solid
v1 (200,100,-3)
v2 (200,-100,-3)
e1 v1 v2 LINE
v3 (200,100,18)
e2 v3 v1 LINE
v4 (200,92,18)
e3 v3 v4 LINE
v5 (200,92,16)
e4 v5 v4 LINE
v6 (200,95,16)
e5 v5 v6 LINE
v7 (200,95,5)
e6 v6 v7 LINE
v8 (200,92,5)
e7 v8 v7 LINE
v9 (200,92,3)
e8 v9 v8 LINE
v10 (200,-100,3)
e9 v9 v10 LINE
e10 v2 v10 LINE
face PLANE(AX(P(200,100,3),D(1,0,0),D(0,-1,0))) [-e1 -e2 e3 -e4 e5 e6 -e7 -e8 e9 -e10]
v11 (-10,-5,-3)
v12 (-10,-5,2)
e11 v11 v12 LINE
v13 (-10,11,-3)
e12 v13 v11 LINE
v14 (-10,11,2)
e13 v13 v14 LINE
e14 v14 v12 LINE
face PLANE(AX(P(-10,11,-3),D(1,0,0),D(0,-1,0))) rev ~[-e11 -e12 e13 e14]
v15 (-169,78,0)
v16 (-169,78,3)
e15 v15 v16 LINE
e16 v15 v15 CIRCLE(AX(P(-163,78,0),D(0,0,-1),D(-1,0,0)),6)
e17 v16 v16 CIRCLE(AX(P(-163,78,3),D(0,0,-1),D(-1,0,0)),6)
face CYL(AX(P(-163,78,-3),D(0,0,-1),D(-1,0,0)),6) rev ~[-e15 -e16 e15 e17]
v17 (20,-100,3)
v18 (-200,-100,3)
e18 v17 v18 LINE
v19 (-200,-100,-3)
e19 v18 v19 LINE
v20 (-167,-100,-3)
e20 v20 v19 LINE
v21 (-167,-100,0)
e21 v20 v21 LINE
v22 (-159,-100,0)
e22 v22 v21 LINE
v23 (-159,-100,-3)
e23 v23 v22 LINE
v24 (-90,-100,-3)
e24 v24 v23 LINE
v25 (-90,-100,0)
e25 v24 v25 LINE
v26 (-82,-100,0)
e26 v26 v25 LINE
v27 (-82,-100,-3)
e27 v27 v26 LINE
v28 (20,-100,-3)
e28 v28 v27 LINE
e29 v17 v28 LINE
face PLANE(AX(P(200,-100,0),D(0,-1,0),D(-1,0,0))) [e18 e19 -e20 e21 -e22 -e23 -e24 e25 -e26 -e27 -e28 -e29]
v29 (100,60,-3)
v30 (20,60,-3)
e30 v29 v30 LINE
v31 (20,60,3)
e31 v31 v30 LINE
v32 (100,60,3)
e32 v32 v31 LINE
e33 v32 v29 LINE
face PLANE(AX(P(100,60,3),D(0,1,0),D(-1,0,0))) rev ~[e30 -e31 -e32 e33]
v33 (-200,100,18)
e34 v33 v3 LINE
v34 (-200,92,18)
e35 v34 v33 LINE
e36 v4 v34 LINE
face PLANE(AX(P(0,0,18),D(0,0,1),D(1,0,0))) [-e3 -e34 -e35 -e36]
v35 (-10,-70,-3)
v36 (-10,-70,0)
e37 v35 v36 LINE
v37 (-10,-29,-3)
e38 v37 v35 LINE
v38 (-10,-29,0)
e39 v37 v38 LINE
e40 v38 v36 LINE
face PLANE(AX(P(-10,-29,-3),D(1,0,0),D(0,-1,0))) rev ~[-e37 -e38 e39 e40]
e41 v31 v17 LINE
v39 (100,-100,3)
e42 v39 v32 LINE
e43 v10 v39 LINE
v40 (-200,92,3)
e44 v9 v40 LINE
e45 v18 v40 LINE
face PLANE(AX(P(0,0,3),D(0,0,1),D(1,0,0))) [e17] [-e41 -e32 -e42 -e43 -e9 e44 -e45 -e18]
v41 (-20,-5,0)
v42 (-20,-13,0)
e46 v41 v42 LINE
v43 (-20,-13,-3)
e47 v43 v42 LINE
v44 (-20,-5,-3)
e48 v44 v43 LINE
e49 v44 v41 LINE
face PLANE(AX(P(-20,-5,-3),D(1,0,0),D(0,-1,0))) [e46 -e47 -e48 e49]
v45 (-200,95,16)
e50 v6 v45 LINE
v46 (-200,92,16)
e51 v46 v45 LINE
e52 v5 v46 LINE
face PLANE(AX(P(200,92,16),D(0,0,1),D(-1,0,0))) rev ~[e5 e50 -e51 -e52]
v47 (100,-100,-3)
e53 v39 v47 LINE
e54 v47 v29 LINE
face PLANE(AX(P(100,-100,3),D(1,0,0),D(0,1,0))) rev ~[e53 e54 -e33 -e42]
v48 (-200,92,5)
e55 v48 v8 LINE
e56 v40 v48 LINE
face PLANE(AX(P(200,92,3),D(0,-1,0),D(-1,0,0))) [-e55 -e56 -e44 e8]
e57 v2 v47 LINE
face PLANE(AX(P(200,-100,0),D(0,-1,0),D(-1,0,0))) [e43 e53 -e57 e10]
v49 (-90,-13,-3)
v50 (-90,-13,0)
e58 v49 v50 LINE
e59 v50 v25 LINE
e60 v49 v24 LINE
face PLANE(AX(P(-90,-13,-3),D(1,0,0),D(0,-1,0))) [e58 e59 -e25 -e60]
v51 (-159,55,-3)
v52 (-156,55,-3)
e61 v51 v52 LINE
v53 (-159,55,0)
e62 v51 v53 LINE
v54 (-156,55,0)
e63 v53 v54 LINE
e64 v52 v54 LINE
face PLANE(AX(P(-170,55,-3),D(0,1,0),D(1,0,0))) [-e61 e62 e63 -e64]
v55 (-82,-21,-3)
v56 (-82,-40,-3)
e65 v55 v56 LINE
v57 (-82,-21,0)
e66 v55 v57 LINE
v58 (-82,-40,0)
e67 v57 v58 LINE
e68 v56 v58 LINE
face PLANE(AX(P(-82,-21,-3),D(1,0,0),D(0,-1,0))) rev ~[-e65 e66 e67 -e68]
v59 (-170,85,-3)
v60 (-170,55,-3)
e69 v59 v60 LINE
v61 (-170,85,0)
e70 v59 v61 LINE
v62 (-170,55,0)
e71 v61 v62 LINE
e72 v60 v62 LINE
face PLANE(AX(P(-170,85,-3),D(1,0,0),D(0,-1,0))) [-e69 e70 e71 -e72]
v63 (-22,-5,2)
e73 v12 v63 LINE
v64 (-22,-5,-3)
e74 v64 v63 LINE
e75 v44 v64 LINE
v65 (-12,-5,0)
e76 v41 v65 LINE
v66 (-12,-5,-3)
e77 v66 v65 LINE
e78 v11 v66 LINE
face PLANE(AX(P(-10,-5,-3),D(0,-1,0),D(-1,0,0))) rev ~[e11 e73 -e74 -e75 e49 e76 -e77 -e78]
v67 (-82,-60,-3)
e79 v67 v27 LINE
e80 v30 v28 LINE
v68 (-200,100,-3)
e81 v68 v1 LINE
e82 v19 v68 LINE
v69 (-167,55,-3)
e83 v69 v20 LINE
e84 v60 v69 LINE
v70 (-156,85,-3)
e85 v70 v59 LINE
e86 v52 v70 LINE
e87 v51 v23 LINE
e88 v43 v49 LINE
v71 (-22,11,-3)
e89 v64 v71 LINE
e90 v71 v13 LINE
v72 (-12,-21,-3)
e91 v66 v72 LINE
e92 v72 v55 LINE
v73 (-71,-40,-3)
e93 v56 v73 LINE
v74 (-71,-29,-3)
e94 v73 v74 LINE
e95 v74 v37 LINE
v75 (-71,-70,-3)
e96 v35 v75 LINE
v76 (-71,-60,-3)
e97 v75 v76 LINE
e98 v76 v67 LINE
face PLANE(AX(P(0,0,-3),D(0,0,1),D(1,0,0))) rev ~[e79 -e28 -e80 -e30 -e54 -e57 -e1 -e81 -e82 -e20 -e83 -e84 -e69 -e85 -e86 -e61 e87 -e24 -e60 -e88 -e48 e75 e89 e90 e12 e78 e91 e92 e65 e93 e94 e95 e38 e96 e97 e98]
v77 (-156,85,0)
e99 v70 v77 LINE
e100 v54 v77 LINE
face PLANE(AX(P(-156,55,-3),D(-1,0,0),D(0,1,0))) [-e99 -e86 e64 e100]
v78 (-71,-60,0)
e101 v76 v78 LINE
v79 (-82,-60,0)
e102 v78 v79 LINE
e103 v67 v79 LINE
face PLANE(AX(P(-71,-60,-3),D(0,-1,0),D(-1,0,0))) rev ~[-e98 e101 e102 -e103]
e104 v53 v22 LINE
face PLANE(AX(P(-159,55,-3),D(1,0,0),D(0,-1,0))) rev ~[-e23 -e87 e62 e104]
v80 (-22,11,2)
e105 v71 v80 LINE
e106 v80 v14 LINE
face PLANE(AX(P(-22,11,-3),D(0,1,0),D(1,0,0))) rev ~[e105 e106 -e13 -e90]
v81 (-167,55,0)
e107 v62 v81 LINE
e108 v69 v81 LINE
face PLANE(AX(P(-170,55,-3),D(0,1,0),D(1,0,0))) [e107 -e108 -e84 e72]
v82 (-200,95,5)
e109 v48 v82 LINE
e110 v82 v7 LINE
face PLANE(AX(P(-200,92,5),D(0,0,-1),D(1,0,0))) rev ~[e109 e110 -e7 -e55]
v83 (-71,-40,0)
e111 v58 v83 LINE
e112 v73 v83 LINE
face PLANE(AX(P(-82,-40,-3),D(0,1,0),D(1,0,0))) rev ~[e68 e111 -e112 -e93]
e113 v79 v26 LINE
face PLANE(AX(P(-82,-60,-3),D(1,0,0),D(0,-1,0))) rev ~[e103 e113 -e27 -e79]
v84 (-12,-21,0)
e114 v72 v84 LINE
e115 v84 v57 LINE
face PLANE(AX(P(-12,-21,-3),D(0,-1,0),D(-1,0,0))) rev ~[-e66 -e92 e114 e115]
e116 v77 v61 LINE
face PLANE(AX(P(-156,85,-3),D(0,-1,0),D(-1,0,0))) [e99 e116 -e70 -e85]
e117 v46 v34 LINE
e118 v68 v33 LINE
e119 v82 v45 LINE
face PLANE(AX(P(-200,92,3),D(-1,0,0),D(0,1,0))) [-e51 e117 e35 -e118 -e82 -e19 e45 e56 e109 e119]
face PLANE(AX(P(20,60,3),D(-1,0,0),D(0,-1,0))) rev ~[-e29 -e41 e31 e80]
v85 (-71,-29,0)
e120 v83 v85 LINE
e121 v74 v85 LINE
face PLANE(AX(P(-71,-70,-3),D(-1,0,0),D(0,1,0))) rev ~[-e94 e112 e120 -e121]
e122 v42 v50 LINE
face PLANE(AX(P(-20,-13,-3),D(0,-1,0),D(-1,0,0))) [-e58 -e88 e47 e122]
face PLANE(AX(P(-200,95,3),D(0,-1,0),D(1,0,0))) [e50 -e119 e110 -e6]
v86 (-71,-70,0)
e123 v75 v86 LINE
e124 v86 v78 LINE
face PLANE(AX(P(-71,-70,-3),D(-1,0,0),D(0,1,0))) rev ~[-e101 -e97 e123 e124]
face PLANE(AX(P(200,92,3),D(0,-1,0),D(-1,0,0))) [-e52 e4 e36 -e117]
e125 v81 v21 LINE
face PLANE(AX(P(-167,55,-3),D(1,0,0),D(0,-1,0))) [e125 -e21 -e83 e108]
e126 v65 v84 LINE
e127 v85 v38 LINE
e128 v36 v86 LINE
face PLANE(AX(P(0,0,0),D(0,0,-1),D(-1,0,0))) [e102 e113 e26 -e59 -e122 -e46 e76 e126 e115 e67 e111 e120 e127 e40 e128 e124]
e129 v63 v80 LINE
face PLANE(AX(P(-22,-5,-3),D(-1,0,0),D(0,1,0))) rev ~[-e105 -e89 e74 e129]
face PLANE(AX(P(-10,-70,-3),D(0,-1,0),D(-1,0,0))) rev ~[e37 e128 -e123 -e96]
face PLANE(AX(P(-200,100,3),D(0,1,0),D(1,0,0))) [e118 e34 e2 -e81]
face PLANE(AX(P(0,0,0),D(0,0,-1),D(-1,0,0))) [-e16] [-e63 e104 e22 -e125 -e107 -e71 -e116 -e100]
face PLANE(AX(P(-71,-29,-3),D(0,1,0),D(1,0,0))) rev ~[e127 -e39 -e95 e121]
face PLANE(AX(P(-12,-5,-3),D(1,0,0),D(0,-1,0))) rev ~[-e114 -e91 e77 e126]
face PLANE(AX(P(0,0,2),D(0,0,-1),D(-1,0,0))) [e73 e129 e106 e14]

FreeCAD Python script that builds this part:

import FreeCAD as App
import Part
import Sketcher

V = App.Vector
Q = App.Units.Quantity


def add_polygon(sketch, points):
    """Adds a closed chain of lines whose ends are joined by coincident constraints."""
    first, n = sketch.GeometryCount, len(points)
    for a, b in zip(points, points[1:] + points[:1]):
        sketch.addGeometry(Part.LineSegment(App.Vector(*a, 0), App.Vector(*b, 0)), False)
    for i in range(n):
        sketch.addConstraint(Sketcher.Constraint("Coincident", first + i, 2, first + (i + 1) % n, 1))

doc = App.newDocument("Part")
params = doc.addObject("Spreadsheet::Sheet", "Params")
for row, (alias, value) in enumerate([
    ("sketch1_width", "400 mm"),
    ("sketch1_height", "200 mm"),
    ("pad1_length", "6 mm"),
    ("sketch2_width", "80 mm"),
    ("sketch2_height", "160 mm"),
    ("sketch3_width", "12 mm"),
    ("sketch3_height", "16 mm"),
    ("pocket2_length", "5 mm"),
    ("sketch4_width", "61 mm"),
    ("sketch4_height", "41 mm"),
    ("pocket3_length", "3 mm"),
    ("sketch5_width", "8 mm"),
    ("sketch5_height", "20 mm"),
    ("sketch5_height2", "40 mm"),
    ("sketch5_width2", "70 mm"),
    ("sketch5_width3", "11 mm"),
    ("pocket4_length", "3 mm"),
    ("sketch6_height", "8 mm"),
    ("sketch6_width", "400 mm"),
    ("pad2_length", "15 mm"),
    ("sketch7_height", "11 mm"),
    ("sketch7_width", "400 mm"),
    ("pocket5_length", "3 mm"),
    ("sketch8_diameter", "12 mm"),
    ("pocket6_length", "6 mm"),
    ("sketch9_diameter", "12 mm"),
    ("sketch9_width", "14 mm"),
    ("sketch9_height", "30 mm"),
    ("pocket7_length", "3 mm"),
    ("sketch10_width", "8 mm"),
    ("sketch10_height", "155 mm"),
    ("pocket8_length", "3 mm"),
], start=1):
    params.set(f"A{row}", alias)
    params.set(f"B{row}", "=" + value)
    params.setAlias(f"B{row}", alias)

body = doc.addObject("PartDesign::Body", "Body")

# Sketch on XY plane
sketch1 = body.newObject("Sketcher::SketchObject", "Sketch")
sketch1.AttachmentSupport = (doc.getObject("XY_Plane"), [""])
sketch1.MapMode = "FlatFace"
add_polygon(sketch1, [(-200, -100), (200, -100), (200, 100), (-200, 100)])  # lines 0-3
sketch1.addConstraint([
    Sketcher.Constraint("Horizontal", 0),
    Sketcher.Constraint("Vertical", 1),
    Sketcher.Constraint("Horizontal", 2),
    Sketcher.Constraint("Vertical", 3),
    Sketcher.Constraint("Symmetric", 0, 2, 2, 2, -1, 1),
    Sketcher.Constraint("DistanceX", 0, 1, 0, 2, Q("400 mm")),
    Sketcher.Constraint("DistanceY", 1, 1, 1, 2, Q("200 mm")),
])
sketch1.setExpression("Constraints[9]", "Params.sketch1_width")
sketch1.setExpression("Constraints[10]", "Params.sketch1_height")
pad1 = body.newObject("PartDesign::Pad", "Pad")
pad1.Profile = sketch1
pad1.setExpression("Length", "Params.pad1_length")
pad1.Midplane = True

# Sketch on XY plane
sketch2 = body.newObject("Sketcher::SketchObject", "Sketch001")
sketch2.AttachmentSupport = (doc.getObject("XY_Plane"), [""])
sketch2.MapMode = "FlatFace"
sketch2.AttachmentOffset = App.Placement(V(0, 0, 3), App.Rotation())
add_polygon(sketch2, [(20, 60), (20, -100), (100, -100), (100, 60)])  # lines 0-3
sketch2.addConstraint([
    Sketcher.Constraint("Vertical", 0),
    Sketcher.Constraint("Horizontal", 1),
    Sketcher.Constraint("Vertical", 2),
    Sketcher.Constraint("Horizontal", 3),
    Sketcher.Constraint("DistanceX", 1, 1, 1, 2, Q("80 mm")),
    Sketcher.Constraint("DistanceY", 0, 2, 0, 1, Q("160 mm")),
    Sketcher.Constraint("DistanceY", 0, 2, -1, 1, Q("100 mm")),
    Sketcher.Constraint("DistanceX", -1, 1, 1, 2, Q("100 mm")),
])
sketch2.setExpression("Constraints[8]", "Params.sketch2_width")
sketch2.setExpression("Constraints[9]", "Params.sketch2_height")
pocket1 = body.newObject("PartDesign::Pocket", "Pocket")
pocket1.Profile = sketch2
pocket1.Type = "ThroughAll"

# Sketch on XY plane
sketch3 = body.newObject("Sketcher::SketchObject", "Sketch002")
sketch3.AttachmentSupport = (doc.getObject("XY_Plane"), [""])
sketch3.MapMode = "FlatFace"
sketch3.AttachmentOffset = App.Placement(V(0, 0, -3), App.Rotation())
add_polygon(sketch3, [(-10, 11), (-10, -5), (-22, -5), (-22, 11)])  # lines 0-3
sketch3.addConstraint([
    Sketcher.Constraint("Vertical", 0),
    Sketcher.Constraint("Horizontal", 1),
    Sketcher.Constraint("Vertical", 2),
    Sketcher.Constraint("Horizontal", 3),
    Sketcher.Constraint("DistanceX", 1, 2, 1, 1, Q("12 mm")),
    Sketcher.Constraint("DistanceY", 0, 2, 0, 1, Q("16 mm")),
    Sketcher.Constraint("DistanceX", 0, 2, -1, 1, Q("10 mm")),
    Sketcher.Constraint("DistanceY", 0, 2, -1, 1, Q("5 mm")),
])
sketch3.setExpression("Constraints[8]", "Params.sketch3_width")
sketch3.setExpression("Constraints[9]", "Params.sketch3_height")
pocket2 = body.newObject("PartDesign::Pocket", "Pocket001")
pocket2.Profile = sketch3
pocket2.setExpression("Length", "Params.pocket2_length")
pocket2.Reversed = True

# Sketch on XY plane
sketch4 = body.newObject("Sketcher::SketchObject", "Sketch003")
sketch4.AttachmentSupport = (doc.getObject("XY_Plane"), [""])
sketch4.MapMode = "FlatFace"
sketch4.AttachmentOffset = App.Placement(V(0, 0, -3), App.Rotation())
add_polygon(sketch4, [(-71, -70), (-71, -29), (-10, -29), (-10, -70)])  # lines 0-3
sketch4.addConstraint([
    Sketcher.Constraint("Vertical", 0),
    Sketcher.Constraint("Horizontal", 1),
    Sketcher.Constraint("Vertical", 2),
    Sketcher.Constraint("Horizontal", 3),
    Sketcher.Constraint("DistanceX", 1, 1, 1, 2, Q("61 mm")),
    Sketcher.Constraint("DistanceY", 0, 1, 0, 2, Q("41 mm")),
    Sketcher.Constraint("DistanceX", 0, 2, -1, 1, Q("71 mm")),
    Sketcher.Constraint("DistanceY", 0, 2, -1, 1, Q("29 mm")),
])
sketch4.setExpression("Constraints[8]", "Params.sketch4_width")
sketch4.setExpression("Constraints[9]", "Params.sketch4_height")
pocket3 = body.newObject("PartDesign::Pocket", "Pocket002")
pocket3.Profile = sketch4
pocket3.setExpression("Length", "Params.pocket3_length")
pocket3.Reversed = True

# Sketch on XY plane
sketch5 = body.newObject("Sketcher::SketchObject", "Sketch004")
sketch5.AttachmentSupport = (doc.getObject("XY_Plane"), [""])
sketch5.MapMode = "FlatFace"
sketch5.AttachmentOffset = App.Placement(V(0, 0, -3), App.Rotation())
add_polygon(sketch5, [(-20, -13), (-20, -5), (-12, -5), (-12, -21), (-82, -21), (-82, -40), (-71, -40), (-71, -60), (-82, -60), (-82, -100), (-90, -100), (-90, -13)])  # lines 0-11
sketch5.addConstraint([
    Sketcher.Constraint("Vertical", 0),
    Sketcher.Constraint("Horizontal", 1),
    Sketcher.Constraint("Vertical", 2),
    Sketcher.Constraint("Horizontal", 3),
    Sketcher.Constraint("Vertical", 4),
    Sketcher.Constraint("Horizontal", 5),
    Sketcher.Constraint("Vertical", 6),
    Sketcher.Constraint("Horizontal", 7),
    Sketcher.Constraint("Vertical", 8),
    Sketcher.Constraint("Horizontal", 9),
    Sketcher.Constraint("Vertical", 10),
    Sketcher.Constraint("Horizontal", 11),
    Sketcher.Constraint("Vertical", 4, 2, 7, 2),
    Sketcher.Constraint("Equal", 1, 9),
    Sketcher.Constraint("Equal", 9, 0),
    Sketcher.Constraint("DistanceX", 1, 1, 1, 2, Q("8 mm")),
    Sketcher.Constraint("DistanceY", 6, 2, 6, 1, Q("20 mm")),
    Sketcher.Constraint("DistanceY", 8, 2, 8, 1, Q("40 mm")),
    Sketcher.Constraint("DistanceX", 0, 2, -1, 1, Q("20 mm")),
    Sketcher.Constraint("DistanceY", 4, 2, -1, 1, Q("40 mm")),
    Sketcher.Constraint("DistanceY", 3, 2, 10, 2, Q("8 mm")),
    Sketcher.Constraint("DistanceX", 3, 2, 3, 1, Q("70 mm")),
    Sketcher.Constraint("DistanceX", 5, 1, 5, 2, Q("11 mm")),
    Sketcher.Constraint("DistanceY", 4, 2, 4, 1, Q("19 mm")),
])
sketch5.setExpression("Constraints[27]", "Params.sketch5_width")
sketch5.setExpression("Constraints[28]", "Params.sketch5_height")
sketch5.setExpression("Constraints[29]", "Params.sketch5_height2")
sketch5.setExpression("Constraints[33]", "Params.sketch5_width2")
sketch5.setExpression("Constraints[34]", "Params.sketch5_width3")
pocket4 = body.newObject("PartDesign::Pocket", "Pocket003")
pocket4.Profile = sketch5
pocket4.setExpression("Length", "Params.pocket4_length")
pocket4.Reversed = True

# Sketch on XY plane
sketch6 = body.newObject("Sketcher::SketchObject", "Sketch005")
sketch6.AttachmentSupport = (doc.getObject("XY_Plane"), [""])
sketch6.MapMode = "FlatFace"
sketch6.AttachmentOffset = App.Placement(V(0, 0, 3), App.Rotation())
add_polygon(sketch6, [(200, 100), (-200, 100), (-200, 92), (200, 92)])  # lines 0-3
sketch6.addConstraint([
    Sketcher.Constraint("Horizontal", 0),
    Sketcher.Constraint("Vertical", 1),
    Sketcher.Constraint("Horizontal", 2),
    Sketcher.Constraint("Vertical", 3),
    Sketcher.Constraint("DistanceY", 1, 2, 1, 1, Q("8 mm")),
    Sketcher.Constraint("DistanceX", 0, 2, 0, 1, Q("400 mm")),
    Sketcher.Constraint("DistanceX", 0, 2, -1, 1, Q("200 mm")),
    Sketcher.Constraint("DistanceY", -1, 1, 0, 2, Q("100 mm")),
])
sketch6.setExpression("Constraints[8]", "Params.sketch6_height")
sketch6.setExpression("Constraints[9]", "Params.sketch6_width")
pad2 = body.newObject("PartDesign::Pad", "Pad001")
pad2.Profile = sketch6
pad2.setExpression("Length", "Params.pad2_length")

# Sketch on XZ plane
sketch7 = body.newObject("Sketcher::SketchObject", "Sketch006")
sketch7.AttachmentSupport = (doc.getObject("XZ_Plane"), [""])
sketch7.MapMode = "FlatFace"
sketch7.AttachmentOffset = App.Placement(V(0, 0, -92), App.Rotation())
add_polygon(sketch7, [(200, 5), (200, 16), (-200, 16), (-200, 5)])  # lines 0-3
sketch7.addConstraint([
    Sketcher.Constraint("Vertical", 0),
    Sketcher.Constraint("Horizontal", 1),
    Sketcher.Constraint("Vertical", 2),
    Sketcher.Constraint("Horizontal", 3),
    Sketcher.Constraint("DistanceY", 0, 1, 0, 2, Q("11 mm")),
    Sketcher.Constraint("DistanceX", 1, 2, 1, 1, Q("400 mm")),
    Sketcher.Constraint("DistanceX", -1, 1, 0, 2, Q("200 mm")),
    Sketcher.Constraint("DistanceY", -1, 1, 0, 2, Q("16 mm")),
])
sketch7.setExpression("Constraints[8]", "Params.sketch7_height")
sketch7.setExpression("Constraints[9]", "Params.sketch7_width")
pocket5 = body.newObject("PartDesign::Pocket", "Pocket004")
pocket5.Profile = sketch7
pocket5.setExpression("Length", "Params.pocket5_length")

# Sketch on XY plane
sketch8 = body.newObject("Sketcher::SketchObject", "Sketch007")
sketch8.AttachmentSupport = (doc.getObject("XY_Plane"), [""])
sketch8.MapMode = "FlatFace"
sketch8.AttachmentOffset = App.Placement(V(0, 0, -3), App.Rotation())
sketch8.addGeometry(Part.Circle(V(-163, 78, 0), V(0, 0, 1), 6), False)
sketch8.addConstraint([
    Sketcher.Constraint("Diameter", 0, Q("12 mm")),
    Sketcher.Constraint("DistanceX", 0, 3, -1, 1, Q("163 mm")),
    Sketcher.Constraint("DistanceY", -1, 1, 0, 3, Q("78 mm")),
])
sketch8.setExpression("Constraints[0]", "Params.sketch8_diameter")
pocket6 = body.newObject("PartDesign::Pocket", "Pocket005")
pocket6.Profile = sketch8
pocket6.setExpression("Length", "Params.pocket6_length")
pocket6.Reversed = True

# Sketch on XY plane
sketch9 = body.newObject("Sketcher::SketchObject", "Sketch008")
sketch9.AttachmentSupport = (doc.getObject("XY_Plane"), [""])
sketch9.MapMode = "FlatFace"
sketch9.AttachmentOffset = App.Placement(V(0, 0, -3), App.Rotation())
add_polygon(sketch9, [(-170, 85), (-156, 85), (-156, 55), (-170, 55)])  # lines 0-3
sketch9.addGeometry(Part.Circle(V(-163, 78, 0), V(0, 0, 1), 6), False)  # 4
sketch9.addConstraint([
    Sketcher.Constraint("Horizontal", 0),
    Sketcher.Constraint("Vertical", 1),
    Sketcher.Constraint("Horizontal", 2),
    Sketcher.Constraint("Vertical", 3),
    Sketcher.Constraint("Diameter", 4, Q("12 mm")),
    Sketcher.Constraint("DistanceX", 0, 1, 0, 2, Q("14 mm")),
    Sketcher.Constraint("DistanceY", 1, 2, 1, 1, Q("30 mm")),
    Sketcher.Constraint("DistanceX", 4, 3, 0, 2, Q("7 mm")),
    Sketcher.Constraint("DistanceY", 4, 3, 0, 2, Q("7 mm")),
    Sketcher.Constraint("DistanceX", 4, 3, -1, 1, Q("163 mm")),
    Sketcher.Constraint("DistanceY", -1, 1, 4, 3, Q("78 mm")),
])
sketch9.setExpression("Constraints[8]", "Params.sketch9_diameter")
sketch9.setExpression("Constraints[9]", "Params.sketch9_width")
sketch9.setExpression("Constraints[10]", "Params.sketch9_height")
pocket7 = body.newObject("PartDesign::Pocket", "Pocket006")
pocket7.Profile = sketch9
pocket7.setExpression("Length", "Params.pocket7_length")
pocket7.Reversed = True

# Sketch on XY plane
sketch10 = body.newObject("Sketcher::SketchObject", "Sketch009")
sketch10.AttachmentSupport = (doc.getObject("XY_Plane"), [""])
sketch10.MapMode = "FlatFace"
sketch10.AttachmentOffset = App.Placement(V(0, 0, -3), App.Rotation())
add_polygon(sketch10, [(-167, 55), (-159, 55), (-159, -100), (-167, -100)])  # lines 0-3
sketch10.addConstraint([
    Sketcher.Constraint("Horizontal", 0),
    Sketcher.Constraint("Vertical", 1),
    Sketcher.Constraint("Horizontal", 2),
    Sketcher.Constraint("Vertical", 3),
    Sketcher.Constraint("DistanceX", 0, 1, 0, 2, Q("8 mm")),
    Sketcher.Constraint("DistanceY", 1, 2, 1, 1, Q("155 mm")),
    Sketcher.Constraint("DistanceX", 0, 2, -1, 1, Q("159 mm")),
    Sketcher.Constraint("DistanceY", -1, 1, 0, 2, Q("55 mm")),
])
sketch10.setExpression("Constraints[8]", "Params.sketch10_width")
sketch10.setExpression("Constraints[9]", "Params.sketch10_height")
pocket8 = body.newObject("PartDesign::Pocket", "Pocket007")
pocket8.Profile = sketch10
pocket8.setExpression("Length", "Params.pocket8_length")
pocket8.Reversed = True

doc.recompute()
